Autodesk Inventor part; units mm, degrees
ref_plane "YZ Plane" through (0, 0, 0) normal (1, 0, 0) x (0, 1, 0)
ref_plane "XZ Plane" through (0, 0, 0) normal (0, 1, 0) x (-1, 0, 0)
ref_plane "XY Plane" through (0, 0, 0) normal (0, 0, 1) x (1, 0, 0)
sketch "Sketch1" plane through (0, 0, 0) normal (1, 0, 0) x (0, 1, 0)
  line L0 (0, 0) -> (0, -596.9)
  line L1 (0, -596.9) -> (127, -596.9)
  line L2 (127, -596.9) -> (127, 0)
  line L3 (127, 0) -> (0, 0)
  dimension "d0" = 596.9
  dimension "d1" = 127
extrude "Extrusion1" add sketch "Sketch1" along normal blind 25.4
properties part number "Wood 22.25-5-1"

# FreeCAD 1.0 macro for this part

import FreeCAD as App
import Part
import Sketcher

V = App.Vector
Q = App.Units.Quantity


def add_polygon(sketch, points):
    """Adds a closed chain of lines whose ends are joined by coincident constraints."""
    first, n = sketch.GeometryCount, len(points)
    for a, b in zip(points, points[1:] + points[:1]):
        sketch.addGeometry(Part.LineSegment(App.Vector(*a, 0), App.Vector(*b, 0)), False)
    for i in range(n):
        sketch.addConstraint(Sketcher.Constraint("Coincident", first + i, 2, first + (i + 1) % n, 1))

doc = App.newDocument("Part")
body = doc.addObject("PartDesign::Body", "Body")

sketch1 = body.newObject("Sketcher::SketchObject", "Sketch")
sketch1.AttachmentSupport = (doc.getObject("YZ_Plane"), [""])
sketch1.MapMode = "FlatFace"
add_polygon(sketch1, [(127, 0), (0, 0), (0, -596.9), (127, -596.9)])
sketch1.addConstraint([
    Sketcher.Constraint("Horizontal", 0),
    Sketcher.Constraint("Vertical", 1),
    Sketcher.Constraint("Horizontal", 2),
    Sketcher.Constraint("Vertical", 3),
    Sketcher.Constraint("Coincident", 0, 2, -1, 1),
    Sketcher.Constraint("DistanceX", 0, 2, 0, 1, Q("5 in")),
    Sketcher.Constraint("DistanceY", 1, 2, 1, 1, Q("23.5 in")),
])
pad1 = body.newObject("PartDesign::Pad", "Pad")
pad1.Profile = sketch1
pad1.Length = Q("1 in")

doc.recompute()
